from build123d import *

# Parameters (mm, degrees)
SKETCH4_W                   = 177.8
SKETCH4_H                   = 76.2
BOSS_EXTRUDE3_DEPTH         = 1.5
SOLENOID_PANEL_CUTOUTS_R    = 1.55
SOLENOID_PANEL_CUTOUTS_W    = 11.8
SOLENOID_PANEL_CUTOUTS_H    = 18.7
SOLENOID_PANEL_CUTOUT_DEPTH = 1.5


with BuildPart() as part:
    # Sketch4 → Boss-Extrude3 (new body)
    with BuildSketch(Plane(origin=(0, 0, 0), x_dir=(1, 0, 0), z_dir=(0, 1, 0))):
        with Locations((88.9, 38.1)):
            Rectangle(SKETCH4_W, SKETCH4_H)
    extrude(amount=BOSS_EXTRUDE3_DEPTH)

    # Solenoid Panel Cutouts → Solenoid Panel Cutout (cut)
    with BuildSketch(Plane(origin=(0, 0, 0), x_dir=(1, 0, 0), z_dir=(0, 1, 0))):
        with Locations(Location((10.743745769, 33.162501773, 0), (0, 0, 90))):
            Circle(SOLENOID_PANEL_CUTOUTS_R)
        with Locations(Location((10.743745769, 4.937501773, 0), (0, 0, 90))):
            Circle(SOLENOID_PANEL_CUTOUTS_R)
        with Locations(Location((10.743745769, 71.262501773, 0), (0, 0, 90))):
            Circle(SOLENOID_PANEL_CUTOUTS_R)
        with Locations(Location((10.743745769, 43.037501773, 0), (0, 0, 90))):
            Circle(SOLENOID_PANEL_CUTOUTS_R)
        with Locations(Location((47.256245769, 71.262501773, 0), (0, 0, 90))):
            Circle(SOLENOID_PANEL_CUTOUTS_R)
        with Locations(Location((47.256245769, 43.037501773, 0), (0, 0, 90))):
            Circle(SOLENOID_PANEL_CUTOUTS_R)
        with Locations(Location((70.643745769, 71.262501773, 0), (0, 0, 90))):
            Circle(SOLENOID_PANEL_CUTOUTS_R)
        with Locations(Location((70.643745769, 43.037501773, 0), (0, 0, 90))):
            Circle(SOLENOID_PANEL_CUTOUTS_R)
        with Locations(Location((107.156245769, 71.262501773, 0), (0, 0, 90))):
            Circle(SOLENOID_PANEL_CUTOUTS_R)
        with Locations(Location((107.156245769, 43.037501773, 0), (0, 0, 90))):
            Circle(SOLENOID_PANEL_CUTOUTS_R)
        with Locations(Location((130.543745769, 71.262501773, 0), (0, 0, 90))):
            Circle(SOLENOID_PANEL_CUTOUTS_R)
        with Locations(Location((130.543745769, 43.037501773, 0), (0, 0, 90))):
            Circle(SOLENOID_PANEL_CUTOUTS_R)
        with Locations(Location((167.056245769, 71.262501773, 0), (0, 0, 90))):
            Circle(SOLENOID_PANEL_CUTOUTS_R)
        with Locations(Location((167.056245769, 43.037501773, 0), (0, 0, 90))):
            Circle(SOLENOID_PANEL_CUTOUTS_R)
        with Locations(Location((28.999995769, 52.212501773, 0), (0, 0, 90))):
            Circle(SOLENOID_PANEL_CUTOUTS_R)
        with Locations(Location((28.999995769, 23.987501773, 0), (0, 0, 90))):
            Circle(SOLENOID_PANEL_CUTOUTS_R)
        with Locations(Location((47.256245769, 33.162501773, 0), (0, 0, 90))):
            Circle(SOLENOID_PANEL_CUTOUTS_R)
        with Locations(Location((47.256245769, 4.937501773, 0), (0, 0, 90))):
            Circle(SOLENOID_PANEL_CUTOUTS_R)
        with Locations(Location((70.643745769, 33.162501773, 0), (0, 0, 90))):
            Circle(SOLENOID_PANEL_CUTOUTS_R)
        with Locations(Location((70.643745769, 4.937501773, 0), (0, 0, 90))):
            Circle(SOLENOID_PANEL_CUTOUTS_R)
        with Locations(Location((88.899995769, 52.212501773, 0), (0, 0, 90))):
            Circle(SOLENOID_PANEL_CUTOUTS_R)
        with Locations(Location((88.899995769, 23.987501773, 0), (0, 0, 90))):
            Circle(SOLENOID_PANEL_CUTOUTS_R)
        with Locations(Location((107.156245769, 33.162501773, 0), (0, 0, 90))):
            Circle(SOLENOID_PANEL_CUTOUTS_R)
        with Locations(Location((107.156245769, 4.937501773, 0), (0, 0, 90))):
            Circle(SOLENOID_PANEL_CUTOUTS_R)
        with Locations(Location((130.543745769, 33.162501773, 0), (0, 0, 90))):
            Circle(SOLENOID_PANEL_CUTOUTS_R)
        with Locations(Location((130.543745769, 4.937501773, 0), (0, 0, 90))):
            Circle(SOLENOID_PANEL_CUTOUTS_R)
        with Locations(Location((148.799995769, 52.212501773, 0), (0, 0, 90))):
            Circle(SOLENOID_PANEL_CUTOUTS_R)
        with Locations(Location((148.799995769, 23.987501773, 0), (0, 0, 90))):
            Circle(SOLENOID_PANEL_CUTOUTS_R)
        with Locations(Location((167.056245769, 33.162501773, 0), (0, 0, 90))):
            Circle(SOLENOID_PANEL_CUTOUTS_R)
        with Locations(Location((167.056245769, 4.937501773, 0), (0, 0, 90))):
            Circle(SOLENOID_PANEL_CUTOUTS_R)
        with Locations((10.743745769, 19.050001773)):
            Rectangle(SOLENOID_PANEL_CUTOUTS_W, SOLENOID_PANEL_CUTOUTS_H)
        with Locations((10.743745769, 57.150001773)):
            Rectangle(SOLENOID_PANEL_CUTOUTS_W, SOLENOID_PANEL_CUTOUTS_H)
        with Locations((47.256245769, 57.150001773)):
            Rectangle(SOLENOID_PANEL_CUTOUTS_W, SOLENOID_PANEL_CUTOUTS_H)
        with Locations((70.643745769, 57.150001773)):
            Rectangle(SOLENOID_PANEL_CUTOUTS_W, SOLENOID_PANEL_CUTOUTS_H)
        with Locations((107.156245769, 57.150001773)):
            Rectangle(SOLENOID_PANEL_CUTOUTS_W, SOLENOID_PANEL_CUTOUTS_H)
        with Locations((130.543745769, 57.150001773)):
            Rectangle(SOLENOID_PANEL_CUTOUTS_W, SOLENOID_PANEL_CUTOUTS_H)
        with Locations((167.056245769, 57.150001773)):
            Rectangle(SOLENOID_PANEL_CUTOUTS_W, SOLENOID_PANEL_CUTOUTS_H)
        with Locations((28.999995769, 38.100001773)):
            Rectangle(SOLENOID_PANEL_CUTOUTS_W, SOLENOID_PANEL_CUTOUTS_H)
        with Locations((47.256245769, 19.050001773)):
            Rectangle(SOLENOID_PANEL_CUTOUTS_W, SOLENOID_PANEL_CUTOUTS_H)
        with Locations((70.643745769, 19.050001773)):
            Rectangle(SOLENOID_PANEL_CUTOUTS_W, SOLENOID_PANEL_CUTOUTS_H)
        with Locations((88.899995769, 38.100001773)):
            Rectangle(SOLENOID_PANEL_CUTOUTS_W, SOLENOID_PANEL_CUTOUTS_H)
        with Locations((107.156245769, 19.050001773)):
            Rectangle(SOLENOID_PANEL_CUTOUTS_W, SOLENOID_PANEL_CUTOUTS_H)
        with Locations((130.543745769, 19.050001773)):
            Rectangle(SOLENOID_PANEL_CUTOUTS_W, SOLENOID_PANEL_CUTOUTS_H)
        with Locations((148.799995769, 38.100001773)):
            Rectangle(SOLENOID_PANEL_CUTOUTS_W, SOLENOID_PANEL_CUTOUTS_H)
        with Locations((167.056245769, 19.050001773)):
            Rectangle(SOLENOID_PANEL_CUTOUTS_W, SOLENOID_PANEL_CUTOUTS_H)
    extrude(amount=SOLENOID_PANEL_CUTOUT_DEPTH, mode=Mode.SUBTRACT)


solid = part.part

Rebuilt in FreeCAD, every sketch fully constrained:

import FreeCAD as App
import Part
import Sketcher

V = App.Vector
Q = App.Units.Quantity


def add_polygon(sketch, points):
    """Adds a closed chain of lines whose ends are joined by coincident constraints."""
    first, n = sketch.GeometryCount, len(points)
    for a, b in zip(points, points[1:] + points[:1]):
        sketch.addGeometry(Part.LineSegment(App.Vector(*a, 0), App.Vector(*b, 0)), False)
    for i in range(n):
        sketch.addConstraint(Sketcher.Constraint("Coincident", first + i, 2, first + (i + 1) % n, 1))

doc = App.newDocument("Part")
body = doc.addObject("PartDesign::Body", "Body")

sketch1 = body.newObject("Sketcher::SketchObject", "Sketch")
sketch1.AttachmentSupport = (doc.getObject("XZ_Plane"), [""])
sketch1.MapMode = "FlatFace"
add_polygon(sketch1, [(0, -76.2), (0, 0), (177.8, 0), (177.8, -76.2)])
sketch1.addConstraint(Sketcher.Constraint("Vertical", 0))
sketch1.addConstraint(Sketcher.Constraint("Horizontal", 1))
sketch1.addConstraint(Sketcher.Constraint("Vertical", 2))
sketch1.addConstraint(Sketcher.Constraint("Horizontal", 3))
sketch1.addConstraint(Sketcher.Constraint("Coincident", 0, 2, -1, 1))
sketch1.addConstraint(Sketcher.Constraint("DistanceX", 1, 1, 1, 2, Q("177.8 mm")))
sketch1.addConstraint(Sketcher.Constraint("DistanceY", 0, 1, 0, 2, Q("76.2 mm")))
pad1 = body.newObject("PartDesign::Pad", "Pad")
pad1.Profile = sketch1
pad1.Length = 1.5
pad1.Reversed = True

sketch2 = body.newObject("Sketcher::SketchObject", "Sketch001")
sketch2.AttachmentSupport = (doc.getObject("XZ_Plane"), [""])
sketch2.MapMode = "FlatFace"
sketch2.addGeometry(Part.Circle(V(10.743746, -33.162502, 0), V(0, 0, 1), 1.55), False)
sketch2.addGeometry(Part.Circle(V(10.743746, -4.937502, 0), V(0, 0, 1), 1.55), False)
sketch2.addGeometry(Part.Circle(V(10.743746, -71.262502, 0), V(0, 0, 1), 1.55), False)
sketch2.addGeometry(Part.Circle(V(10.743746, -43.037502, 0), V(0, 0, 1), 1.55), False)
sketch2.addGeometry(Part.Circle(V(47.256246, -71.262502, 0), V(0, 0, 1), 1.55), False)
sketch2.addGeometry(Part.Circle(V(47.256246, -43.037502, 0), V(0, 0, 1), 1.55), False)
sketch2.addGeometry(Part.Circle(V(70.643746, -71.262502, 0), V(0, 0, 1), 1.55), False)
sketch2.addGeometry(Part.Circle(V(70.643746, -43.037502, 0), V(0, 0, 1), 1.55), False)
sketch2.addGeometry(Part.Circle(V(107.156246, -71.262502, 0), V(0, 0, 1), 1.55), False)
sketch2.addGeometry(Part.Circle(V(107.156246, -43.037502, 0), V(0, 0, 1), 1.55), False)
sketch2.addGeometry(Part.Circle(V(130.543746, -71.262502, 0), V(0, 0, 1), 1.55), False)
sketch2.addGeometry(Part.Circle(V(130.543746, -43.037502, 0), V(0, 0, 1), 1.55), False)
sketch2.addGeometry(Part.Circle(V(167.056246, -71.262502, 0), V(0, 0, 1), 1.55), False)
sketch2.addGeometry(Part.Circle(V(167.056246, -43.037502, 0), V(0, 0, 1), 1.55), False)
sketch2.addGeometry(Part.Circle(V(28.999996, -52.212502, 0), V(0, 0, 1), 1.55), False)
sketch2.addGeometry(Part.Circle(V(28.999996, -23.987502, 0), V(0, 0, 1), 1.55), False)
sketch2.addGeometry(Part.Circle(V(47.256246, -33.162502, 0), V(0, 0, 1), 1.55), False)
sketch2.addGeometry(Part.Circle(V(47.256246, -4.937502, 0), V(0, 0, 1), 1.55), False)
sketch2.addGeometry(Part.Circle(V(70.643746, -33.162502, 0), V(0, 0, 1), 1.55), False)
sketch2.addGeometry(Part.Circle(V(70.643746, -4.937502, 0), V(0, 0, 1), 1.55), False)
sketch2.addGeometry(Part.Circle(V(88.899996, -52.212502, 0), V(0, 0, 1), 1.55), False)
sketch2.addGeometry(Part.Circle(V(88.899996, -23.987502, 0), V(0, 0, 1), 1.55), False)
sketch2.addGeometry(Part.Circle(V(107.156246, -33.162502, 0), V(0, 0, 1), 1.55), False)
sketch2.addGeometry(Part.Circle(V(107.156246, -4.937502, 0), V(0, 0, 1), 1.55), False)
sketch2.addGeometry(Part.Circle(V(130.543746, -33.162502, 0), V(0, 0, 1), 1.55), False)
sketch2.addGeometry(Part.Circle(V(130.543746, -4.937502, 0), V(0, 0, 1), 1.55), False)
sketch2.addGeometry(Part.Circle(V(148.799996, -52.212502, 0), V(0, 0, 1), 1.55), False)
sketch2.addGeometry(Part.Circle(V(148.799996, -23.987502, 0), V(0, 0, 1), 1.55), False)
sketch2.addGeometry(Part.Circle(V(167.056246, -33.162502, 0), V(0, 0, 1), 1.55), False)
sketch2.addGeometry(Part.Circle(V(167.056246, -4.937502, 0), V(0, 0, 1), 1.55), False)
add_polygon(sketch2, [(4.843746, -28.400002), (4.843746, -9.700002), (16.643746, -9.700002), (16.643746, -28.400002)])
add_polygon(sketch2, [(4.843746, -66.500002), (4.843746, -47.800002), (16.643746, -47.800002), (16.643746, -66.500002)])
add_polygon(sketch2, [(41.356246, -66.500002), (41.356246, -47.800002), (53.156246, -47.800002), (53.156246, -66.500002)])
add_polygon(sketch2, [(64.743746, -66.500002), (64.743746, -47.800002), (76.543746, -47.800002), (76.543746, -66.500002)])
add_polygon(sketch2, [(101.256246, -66.500002), (101.256246, -47.800002), (113.056246, -47.800002), (113.056246, -66.500002)])
add_polygon(sketch2, [(124.643746, -66.500002), (124.643746, -47.800002), (136.443746, -47.800002), (136.443746, -66.500002)])
add_polygon(sketch2, [(161.156246, -66.500002), (161.156246, -47.800002), (172.956246, -47.800002), (172.956246, -66.500002)])
add_polygon(sketch2, [(23.099996, -47.450002), (23.099996, -28.750002), (34.899996, -28.750002), (34.899996, -47.450002)])
add_polygon(sketch2, [(41.356246, -28.400002), (41.356246, -9.700002), (53.156246, -9.700002), (53.156246, -28.400002)])
add_polygon(sketch2, [(64.743746, -28.400002), (64.743746, -9.700002), (76.543746, -9.700002), (76.543746, -28.400002)])
add_polygon(sketch2, [(82.999996, -47.450002), (82.999996, -28.750002), (94.799996, -28.750002), (94.799996, -47.450002)])
add_polygon(sketch2, [(101.256246, -28.400002), (101.256246, -9.700002), (113.056246, -9.700002), (113.056246, -28.400002)])
add_polygon(sketch2, [(124.643746, -28.400002), (124.643746, -9.700002), (136.443746, -9.700002), (136.443746, -28.400002)])
add_polygon(sketch2, [(142.899996, -47.450002), (142.899996, -28.750002), (154.699996, -28.750002), (154.699996, -47.450002)])
add_polygon(sketch2, [(161.156246, -28.400002), (161.156246, -9.700002), (172.956246, -9.700002), (172.956246, -28.400002)])
sketch2.addConstraint(Sketcher.Constraint("Vertical", 30))
sketch2.addConstraint(Sketcher.Constraint("Horizontal", 31))
sketch2.addConstraint(Sketcher.Constraint("Vertical", 32))
sketch2.addConstraint(Sketcher.Constraint("Horizontal", 33))
sketch2.addConstraint(Sketcher.Constraint("Vertical", 34))
sketch2.addConstraint(Sketcher.Constraint("Horizontal", 35))
sketch2.addConstraint(Sketcher.Constraint("Vertical", 36))
sketch2.addConstraint(Sketcher.Constraint("Horizontal", 37))
sketch2.addConstraint(Sketcher.Constraint("Vertical", 38))
sketch2.addConstraint(Sketcher.Constraint("Horizontal", 39))
sketch2.addConstraint(Sketcher.Constraint("Vertical", 40))
sketch2.addConstraint(Sketcher.Constraint("Horizontal", 41))
sketch2.addConstraint(Sketcher.Constraint("Vertical", 42))
sketch2.addConstraint(Sketcher.Constraint("Horizontal", 43))
sketch2.addConstraint(Sketcher.Constraint("Vertical", 44))
sketch2.addConstraint(Sketcher.Constraint("Horizontal", 45))
sketch2.addConstraint(Sketcher.Constraint("Vertical", 46))
sketch2.addConstraint(Sketcher.Constraint("Horizontal", 47))
sketch2.addConstraint(Sketcher.Constraint("Vertical", 48))
sketch2.addConstraint(Sketcher.Constraint("Horizontal", 49))
sketch2.addConstraint(Sketcher.Constraint("Vertical", 50))
sketch2.addConstraint(Sketcher.Constraint("Horizontal", 51))
sketch2.addConstraint(Sketcher.Constraint("Vertical", 52))
sketch2.addConstraint(Sketcher.Constraint("Horizontal", 53))
sketch2.addConstraint(Sketcher.Constraint("Vertical", 54))
sketch2.addConstraint(Sketcher.Constraint("Horizontal", 55))
sketch2.addConstraint(Sketcher.Constraint("Vertical", 56))
sketch2.addConstraint(Sketcher.Constraint("Horizontal", 57))
sketch2.addConstraint(Sketcher.Constraint("Vertical", 58))
sketch2.addConstraint(Sketcher.Constraint("Horizontal", 59))
sketch2.addConstraint(Sketcher.Constraint("Vertical", 60))
sketch2.addConstraint(Sketcher.Constraint("Horizontal", 61))
sketch2.addConstraint(Sketcher.Constraint("Vertical", 62))
sketch2.addConstraint(Sketcher.Constraint("Horizontal", 63))
sketch2.addConstraint(Sketcher.Constraint("Vertical", 64))
sketch2.addConstraint(Sketcher.Constraint("Horizontal", 65))
sketch2.addConstraint(Sketcher.Constraint("Vertical", 66))
sketch2.addConstraint(Sketcher.Constraint("Horizontal", 67))
sketch2.addConstraint(Sketcher.Constraint("Vertical", 68))
sketch2.addConstraint(Sketcher.Constraint("Horizontal", 69))
sketch2.addConstraint(Sketcher.Constraint("Vertical", 70))
sketch2.addConstraint(Sketcher.Constraint("Horizontal", 71))
sketch2.addConstraint(Sketcher.Constraint("Vertical", 72))
sketch2.addConstraint(Sketcher.Constraint("Horizontal", 73))
sketch2.addConstraint(Sketcher.Constraint("Vertical", 74))
sketch2.addConstraint(Sketcher.Constraint("Horizontal", 75))
sketch2.addConstraint(Sketcher.Constraint("Vertical", 76))
sketch2.addConstraint(Sketcher.Constraint("Horizontal", 77))
sketch2.addConstraint(Sketcher.Constraint("Vertical", 78))
sketch2.addConstraint(Sketcher.Constraint("Horizontal", 79))
sketch2.addConstraint(Sketcher.Constraint("Vertical", 80))
sketch2.addConstraint(Sketcher.Constraint("Horizontal", 81))
sketch2.addConstraint(Sketcher.Constraint("Vertical", 82))
sketch2.addConstraint(Sketcher.Constraint("Horizontal", 83))
sketch2.addConstraint(Sketcher.Constraint("Vertical", 84))
sketch2.addConstraint(Sketcher.Constraint("Horizontal", 85))
sketch2.addConstraint(Sketcher.Constraint("Vertical", 86))
sketch2.addConstraint(Sketcher.Constraint("Horizontal", 87))
sketch2.addConstraint(Sketcher.Constraint("Vertical", 88))
sketch2.addConstraint(Sketcher.Constraint("Horizontal", 89))
sketch2.addConstraint(Sketcher.Constraint("Equal", 0, 1))
sketch2.addConstraint(Sketcher.Constraint("Equal", 1, 2))
sketch2.addConstraint(Sketcher.Constraint("Equal", 2, 3))
sketch2.addConstraint(Sketcher.Constraint("Equal", 3, 4))
sketch2.addConstraint(Sketcher.Constraint("Equal", 4, 5))
sketch2.addConstraint(Sketcher.Constraint("Equal", 5, 6))
sketch2.addConstraint(Sketcher.Constraint("Equal", 6, 7))
sketch2.addConstraint(Sketcher.Constraint("Equal", 7, 8))
sketch2.addConstraint(Sketcher.Constraint("Equal", 8, 9))
sketch2.addConstraint(Sketcher.Constraint("Equal", 9, 10))
sketch2.addConstraint(Sketcher.Constraint("Equal", 10, 11))
sketch2.addConstraint(Sketcher.Constraint("Equal", 11, 12))
sketch2.addConstraint(Sketcher.Constraint("Equal", 12, 13))
sketch2.addConstraint(Sketcher.Constraint("Equal", 13, 14))
sketch2.addConstraint(Sketcher.Constraint("Equal", 14, 15))
sketch2.addConstraint(Sketcher.Constraint("Equal", 15, 16))
sketch2.addConstraint(Sketcher.Constraint("Equal", 16, 17))
sketch2.addConstraint(Sketcher.Constraint("Equal", 17, 18))
sketch2.addConstraint(Sketcher.Constraint("Equal", 18, 19))
sketch2.addConstraint(Sketcher.Constraint("Equal", 19, 20))
sketch2.addConstraint(Sketcher.Constraint("Equal", 20, 21))
sketch2.addConstraint(Sketcher.Constraint("Equal", 21, 22))
sketch2.addConstraint(Sketcher.Constraint("Equal", 22, 23))
sketch2.addConstraint(Sketcher.Constraint("Equal", 23, 24))
sketch2.addConstraint(Sketcher.Constraint("Equal", 24, 25))
sketch2.addConstraint(Sketcher.Constraint("Equal", 25, 26))
sketch2.addConstraint(Sketcher.Constraint("Equal", 26, 27))
sketch2.addConstraint(Sketcher.Constraint("Equal", 27, 28))
sketch2.addConstraint(Sketcher.Constraint("Equal", 28, 29))
sketch2.addConstraint(Sketcher.Constraint("Horizontal", 2, 3, 4, 3))
sketch2.addConstraint(Sketcher.Constraint("Horizontal", 3, 3, 5, 3))
sketch2.addConstraint(Sketcher.Constraint("Horizontal", 4, 3, 6, 3))
sketch2.addConstraint(Sketcher.Constraint("Horizontal", 5, 3, 7, 3))
sketch2.addConstraint(Sketcher.Constraint("Horizontal", 6, 3, 8, 3))
sketch2.addConstraint(Sketcher.Constraint("Horizontal", 7, 3, 9, 3))
sketch2.addConstraint(Sketcher.Constraint("Horizontal", 8, 3, 10, 3))
sketch2.addConstraint(Sketcher.Constraint("Horizontal", 9, 3, 11, 3))
sketch2.addConstraint(Sketcher.Constraint("Horizontal", 10, 3, 12, 3))
sketch2.addConstraint(Sketcher.Constraint("Horizontal", 11, 3, 13, 3))
sketch2.addConstraint(Sketcher.Constraint("Horizontal", 0, 3, 16, 3))
sketch2.addConstraint(Sketcher.Constraint("Horizontal", 1, 3, 17, 3))
sketch2.addConstraint(Sketcher.Constraint("Horizontal", 16, 3, 18, 3))
sketch2.addConstraint(Sketcher.Constraint("Horizontal", 17, 3, 19, 3))
sketch2.addConstraint(Sketcher.Constraint("Horizontal", 14, 3, 20, 3))
sketch2.addConstraint(Sketcher.Constraint("Horizontal", 15, 3, 21, 3))
sketch2.addConstraint(Sketcher.Constraint("Horizontal", 18, 3, 22, 3))
sketch2.addConstraint(Sketcher.Constraint("Horizontal", 19, 3, 23, 3))
sketch2.addConstraint(Sketcher.Constraint("Horizontal", 22, 3, 24, 3))
sketch2.addConstraint(Sketcher.Constraint("Horizontal", 23, 3, 25, 3))
sketch2.addConstraint(Sketcher.Constraint("Horizontal", 20, 3, 26, 3))
sketch2.addConstraint(Sketcher.Constraint("Horizontal", 21, 3, 27, 3))
sketch2.addConstraint(Sketcher.Constraint("Horizontal", 24, 3, 28, 3))
sketch2.addConstraint(Sketcher.Constraint("Horizontal", 25, 3, 29, 3))
sketch2.addConstraint(Sketcher.Constraint("Horizontal", 35, 2, 38, 2))
sketch2.addConstraint(Sketcher.Constraint("Horizontal", 37, 2, 40, 2))
sketch2.addConstraint(Sketcher.Constraint("Horizontal", 39, 2, 42, 2))
sketch2.addConstraint(Sketcher.Constraint("Horizontal", 41, 2, 44, 2))
sketch2.addConstraint(Sketcher.Constraint("Horizontal", 43, 2, 46, 2))
sketch2.addConstraint(Sketcher.Constraint("Horizontal", 45, 2, 48, 2))
sketch2.addConstraint(Sketcher.Constraint("Horizontal", 47, 2, 50, 2))
sketch2.addConstraint(Sketcher.Constraint("Horizontal", 49, 2, 52, 2))
sketch2.addConstraint(Sketcher.Constraint("Horizontal", 51, 2, 54, 2))
sketch2.addConstraint(Sketcher.Constraint("Horizontal", 53, 2, 56, 2))
sketch2.addConstraint(Sketcher.Constraint("Horizontal", 31, 2, 62, 2))
sketch2.addConstraint(Sketcher.Constraint("Horizontal", 33, 2, 64, 2))
sketch2.addConstraint(Sketcher.Constraint("Horizontal", 63, 2, 66, 2))
sketch2.addConstraint(Sketcher.Constraint("Horizontal", 65, 2, 68, 2))
sketch2.addConstraint(Sketcher.Constraint("Horizontal", 59, 2, 70, 2))
sketch2.addConstraint(Sketcher.Constraint("Horizontal", 61, 2, 72, 2))
sketch2.addConstraint(Sketcher.Constraint("Horizontal", 67, 2, 74, 2))
sketch2.addConstraint(Sketcher.Constraint("Horizontal", 69, 2, 76, 2))
sketch2.addConstraint(Sketcher.Constraint("Horizontal", 75, 2, 78, 2))
sketch2.addConstraint(Sketcher.Constraint("Horizontal", 77, 2, 80, 2))
sketch2.addConstraint(Sketcher.Constraint("Horizontal", 71, 2, 82, 2))
sketch2.addConstraint(Sketcher.Constraint("Horizontal", 73, 2, 84, 2))
sketch2.addConstraint(Sketcher.Constraint("Horizontal", 79, 2, 86, 2))
sketch2.addConstraint(Sketcher.Constraint("Horizontal", 81, 2, 88, 2))
sketch2.addConstraint(Sketcher.Constraint("Vertical", 0, 3, 1, 3))
sketch2.addConstraint(Sketcher.Constraint("Vertical", 1, 3, 2, 3))
sketch2.addConstraint(Sketcher.Constraint("Vertical", 2, 3, 3, 3))
sketch2.addConstraint(Sketcher.Constraint("Vertical", 4, 3, 5, 3))
sketch2.addConstraint(Sketcher.Constraint("Vertical", 6, 3, 7, 3))
sketch2.addConstraint(Sketcher.Constraint("Vertical", 8, 3, 9, 3))
sketch2.addConstraint(Sketcher.Constraint("Vertical", 10, 3, 11, 3))
sketch2.addConstraint(Sketcher.Constraint("Vertical", 12, 3, 13, 3))
sketch2.addConstraint(Sketcher.Constraint("Vertical", 14, 3, 15, 3))
sketch2.addConstraint(Sketcher.Constraint("Vertical", 5, 3, 16, 3))
sketch2.addConstraint(Sketcher.Constraint("Vertical", 16, 3, 17, 3))
sketch2.addConstraint(Sketcher.Constraint("Vertical", 7, 3, 18, 3))
sketch2.addConstraint(Sketcher.Constraint("Vertical", 18, 3, 19, 3))
sketch2.addConstraint(Sketcher.Constraint("Vertical", 20, 3, 21, 3))
sketch2.addConstraint(Sketcher.Constraint("Vertical", 9, 3, 22, 3))
sketch2.addConstraint(Sketcher.Constraint("Vertical", 22, 3, 23, 3))
sketch2.addConstraint(Sketcher.Constraint("Vertical", 11, 3, 24, 3))
sketch2.addConstraint(Sketcher.Constraint("Vertical", 24, 3, 25, 3))
sketch2.addConstraint(Sketcher.Constraint("Vertical", 26, 3, 27, 3))
sketch2.addConstraint(Sketcher.Constraint("Vertical", 13, 3, 28, 3))
sketch2.addConstraint(Sketcher.Constraint("Vertical", 28, 3, 29, 3))
sketch2.addConstraint(Sketcher.Constraint("Vertical", 33, 2, 34, 2))
sketch2.addConstraint(Sketcher.Constraint("Vertical", 32, 2, 35, 2))
sketch2.addConstraint(Sketcher.Constraint("Vertical", 41, 2, 62, 2))
sketch2.addConstraint(Sketcher.Constraint("Vertical", 40, 2, 63, 2))
sketch2.addConstraint(Sketcher.Constraint("Vertical", 45, 2, 66, 2))
sketch2.addConstraint(Sketcher.Constraint("Vertical", 44, 2, 67, 2))
sketch2.addConstraint(Sketcher.Constraint("Vertical", 49, 2, 74, 2))
sketch2.addConstraint(Sketcher.Constraint("Vertical", 48, 2, 75, 2))
sketch2.addConstraint(Sketcher.Constraint("Vertical", 53, 2, 78, 2))
sketch2.addConstraint(Sketcher.Constraint("Vertical", 52, 2, 79, 2))
sketch2.addConstraint(Sketcher.Constraint("Vertical", 57, 2, 86, 2))
sketch2.addConstraint(Sketcher.Constraint("Vertical", 56, 2, 87, 2))
sketch2.addConstraint(Sketcher.Constraint("Equal", 37, 39))
sketch2.addConstraint(Sketcher.Constraint("Equal", 41, 43))
sketch2.addConstraint(Sketcher.Constraint("Equal", 45, 47))
sketch2.addConstraint(Sketcher.Constraint("Equal", 49, 51))
sketch2.addConstraint(Sketcher.Constraint("Equal", 53, 55))
sketch2.addConstraint(Sketcher.Constraint("Equal", 57, 59))
sketch2.addConstraint(Sketcher.Constraint("Equal", 69, 71))
sketch2.addConstraint(Sketcher.Constraint("Equal", 81, 83))
sketch2.addConstraint(Sketcher.Constraint("Equal", 32, 34))
sketch2.addConstraint(Sketcher.Constraint("Equal", 56, 58))
sketch2.addConstraint(Sketcher.Constraint("Diameter", 0, Q("3.1 mm")))
sketch2.addConstraint(Sketcher.Constraint("DistanceX", 31, 1, 31, 2, Q("11.8 mm")))
sketch2.addConstraint(Sketcher.Constraint("DistanceY", 30, 1, 30, 2, Q("18.7 mm")))
sketch2.addConstraint(Sketcher.Constraint("DistanceY", 30, 2, -1, 1, Q("9.700002 mm")))
sketch2.addConstraint(Sketcher.Constraint("DistanceY", 34, 2, -1, 1, Q("47.800002 mm")))
sketch2.addConstraint(Sketcher.Constraint("DistanceY", 58, 2, -1, 1, Q("28.750002 mm")))
sketch2.addConstraint(Sketcher.Constraint("DistanceY", 0, 3, -1, 1, Q("33.162502 mm")))
sketch2.addConstraint(Sketcher.Constraint("DistanceY", 1, 3, -1, 1, Q("4.937502 mm")))
sketch2.addConstraint(Sketcher.Constraint("DistanceY", 2, 3, -1, 1, Q("71.262502 mm")))
sketch2.addConstraint(Sketcher.Constraint("DistanceY", 3, 3, -1, 1, Q("43.037502 mm")))
sketch2.addConstraint(Sketcher.Constraint("DistanceY", 14, 3, -1, 1, Q("52.212502 mm")))
sketch2.addConstraint(Sketcher.Constraint("DistanceY", 15, 3, -1, 1, Q("23.987502 mm")))
sketch2.addConstraint(Sketcher.Constraint("DistanceX", -1, 1, 0, 3, Q("10.743746 mm")))
sketch2.addConstraint(Sketcher.Constraint("DistanceX", -1, 1, 4, 3, Q("47.256246 mm")))
sketch2.addConstraint(Sketcher.Constraint("DistanceX", -1, 1, 6, 3, Q("70.643746 mm")))
sketch2.addConstraint(Sketcher.Constraint("DistanceX", -1, 1, 8, 3, Q("107.156246 mm")))
sketch2.addConstraint(Sketcher.Constraint("DistanceX", -1, 1, 10, 3, Q("130.543746 mm")))
sketch2.addConstraint(Sketcher.Constraint("DistanceX", -1, 1, 12, 3, Q("167.056246 mm")))
sketch2.addConstraint(Sketcher.Constraint("DistanceX", -1, 1, 14, 3, Q("28.999996 mm")))
sketch2.addConstraint(Sketcher.Constraint("DistanceX", -1, 1, 20, 3, Q("88.899996 mm")))
sketch2.addConstraint(Sketcher.Constraint("DistanceX", -1, 1, 26, 3, Q("148.799996 mm")))
sketch2.addConstraint(Sketcher.Constraint("DistanceX", -1, 1, 30, 2, Q("4.843746 mm")))
sketch2.addConstraint(Sketcher.Constraint("DistanceX", -1, 1, 38, 2, Q("41.356246 mm")))
sketch2.addConstraint(Sketcher.Constraint("DistanceX", -1, 1, 42, 2, Q("64.743746 mm")))
sketch2.addConstraint(Sketcher.Constraint("DistanceX", -1, 1, 46, 2, Q("101.256246 mm")))
sketch2.addConstraint(Sketcher.Constraint("DistanceX", -1, 1, 50, 2, Q("124.643746 mm")))
sketch2.addConstraint(Sketcher.Constraint("DistanceX", -1, 1, 54, 2, Q("161.156246 mm")))
sketch2.addConstraint(Sketcher.Constraint("DistanceX", -1, 1, 58, 2, Q("23.099996 mm")))
sketch2.addConstraint(Sketcher.Constraint("DistanceX", -1, 1, 70, 2, Q("82.999996 mm")))
sketch2.addConstraint(Sketcher.Constraint("DistanceX", -1, 1, 82, 2, Q("142.899996 mm")))
pocket1 = body.newObject("PartDesign::Pocket", "Pocket")
pocket1.Profile = sketch2
pocket1.Length = 1.5

doc.recompute()
